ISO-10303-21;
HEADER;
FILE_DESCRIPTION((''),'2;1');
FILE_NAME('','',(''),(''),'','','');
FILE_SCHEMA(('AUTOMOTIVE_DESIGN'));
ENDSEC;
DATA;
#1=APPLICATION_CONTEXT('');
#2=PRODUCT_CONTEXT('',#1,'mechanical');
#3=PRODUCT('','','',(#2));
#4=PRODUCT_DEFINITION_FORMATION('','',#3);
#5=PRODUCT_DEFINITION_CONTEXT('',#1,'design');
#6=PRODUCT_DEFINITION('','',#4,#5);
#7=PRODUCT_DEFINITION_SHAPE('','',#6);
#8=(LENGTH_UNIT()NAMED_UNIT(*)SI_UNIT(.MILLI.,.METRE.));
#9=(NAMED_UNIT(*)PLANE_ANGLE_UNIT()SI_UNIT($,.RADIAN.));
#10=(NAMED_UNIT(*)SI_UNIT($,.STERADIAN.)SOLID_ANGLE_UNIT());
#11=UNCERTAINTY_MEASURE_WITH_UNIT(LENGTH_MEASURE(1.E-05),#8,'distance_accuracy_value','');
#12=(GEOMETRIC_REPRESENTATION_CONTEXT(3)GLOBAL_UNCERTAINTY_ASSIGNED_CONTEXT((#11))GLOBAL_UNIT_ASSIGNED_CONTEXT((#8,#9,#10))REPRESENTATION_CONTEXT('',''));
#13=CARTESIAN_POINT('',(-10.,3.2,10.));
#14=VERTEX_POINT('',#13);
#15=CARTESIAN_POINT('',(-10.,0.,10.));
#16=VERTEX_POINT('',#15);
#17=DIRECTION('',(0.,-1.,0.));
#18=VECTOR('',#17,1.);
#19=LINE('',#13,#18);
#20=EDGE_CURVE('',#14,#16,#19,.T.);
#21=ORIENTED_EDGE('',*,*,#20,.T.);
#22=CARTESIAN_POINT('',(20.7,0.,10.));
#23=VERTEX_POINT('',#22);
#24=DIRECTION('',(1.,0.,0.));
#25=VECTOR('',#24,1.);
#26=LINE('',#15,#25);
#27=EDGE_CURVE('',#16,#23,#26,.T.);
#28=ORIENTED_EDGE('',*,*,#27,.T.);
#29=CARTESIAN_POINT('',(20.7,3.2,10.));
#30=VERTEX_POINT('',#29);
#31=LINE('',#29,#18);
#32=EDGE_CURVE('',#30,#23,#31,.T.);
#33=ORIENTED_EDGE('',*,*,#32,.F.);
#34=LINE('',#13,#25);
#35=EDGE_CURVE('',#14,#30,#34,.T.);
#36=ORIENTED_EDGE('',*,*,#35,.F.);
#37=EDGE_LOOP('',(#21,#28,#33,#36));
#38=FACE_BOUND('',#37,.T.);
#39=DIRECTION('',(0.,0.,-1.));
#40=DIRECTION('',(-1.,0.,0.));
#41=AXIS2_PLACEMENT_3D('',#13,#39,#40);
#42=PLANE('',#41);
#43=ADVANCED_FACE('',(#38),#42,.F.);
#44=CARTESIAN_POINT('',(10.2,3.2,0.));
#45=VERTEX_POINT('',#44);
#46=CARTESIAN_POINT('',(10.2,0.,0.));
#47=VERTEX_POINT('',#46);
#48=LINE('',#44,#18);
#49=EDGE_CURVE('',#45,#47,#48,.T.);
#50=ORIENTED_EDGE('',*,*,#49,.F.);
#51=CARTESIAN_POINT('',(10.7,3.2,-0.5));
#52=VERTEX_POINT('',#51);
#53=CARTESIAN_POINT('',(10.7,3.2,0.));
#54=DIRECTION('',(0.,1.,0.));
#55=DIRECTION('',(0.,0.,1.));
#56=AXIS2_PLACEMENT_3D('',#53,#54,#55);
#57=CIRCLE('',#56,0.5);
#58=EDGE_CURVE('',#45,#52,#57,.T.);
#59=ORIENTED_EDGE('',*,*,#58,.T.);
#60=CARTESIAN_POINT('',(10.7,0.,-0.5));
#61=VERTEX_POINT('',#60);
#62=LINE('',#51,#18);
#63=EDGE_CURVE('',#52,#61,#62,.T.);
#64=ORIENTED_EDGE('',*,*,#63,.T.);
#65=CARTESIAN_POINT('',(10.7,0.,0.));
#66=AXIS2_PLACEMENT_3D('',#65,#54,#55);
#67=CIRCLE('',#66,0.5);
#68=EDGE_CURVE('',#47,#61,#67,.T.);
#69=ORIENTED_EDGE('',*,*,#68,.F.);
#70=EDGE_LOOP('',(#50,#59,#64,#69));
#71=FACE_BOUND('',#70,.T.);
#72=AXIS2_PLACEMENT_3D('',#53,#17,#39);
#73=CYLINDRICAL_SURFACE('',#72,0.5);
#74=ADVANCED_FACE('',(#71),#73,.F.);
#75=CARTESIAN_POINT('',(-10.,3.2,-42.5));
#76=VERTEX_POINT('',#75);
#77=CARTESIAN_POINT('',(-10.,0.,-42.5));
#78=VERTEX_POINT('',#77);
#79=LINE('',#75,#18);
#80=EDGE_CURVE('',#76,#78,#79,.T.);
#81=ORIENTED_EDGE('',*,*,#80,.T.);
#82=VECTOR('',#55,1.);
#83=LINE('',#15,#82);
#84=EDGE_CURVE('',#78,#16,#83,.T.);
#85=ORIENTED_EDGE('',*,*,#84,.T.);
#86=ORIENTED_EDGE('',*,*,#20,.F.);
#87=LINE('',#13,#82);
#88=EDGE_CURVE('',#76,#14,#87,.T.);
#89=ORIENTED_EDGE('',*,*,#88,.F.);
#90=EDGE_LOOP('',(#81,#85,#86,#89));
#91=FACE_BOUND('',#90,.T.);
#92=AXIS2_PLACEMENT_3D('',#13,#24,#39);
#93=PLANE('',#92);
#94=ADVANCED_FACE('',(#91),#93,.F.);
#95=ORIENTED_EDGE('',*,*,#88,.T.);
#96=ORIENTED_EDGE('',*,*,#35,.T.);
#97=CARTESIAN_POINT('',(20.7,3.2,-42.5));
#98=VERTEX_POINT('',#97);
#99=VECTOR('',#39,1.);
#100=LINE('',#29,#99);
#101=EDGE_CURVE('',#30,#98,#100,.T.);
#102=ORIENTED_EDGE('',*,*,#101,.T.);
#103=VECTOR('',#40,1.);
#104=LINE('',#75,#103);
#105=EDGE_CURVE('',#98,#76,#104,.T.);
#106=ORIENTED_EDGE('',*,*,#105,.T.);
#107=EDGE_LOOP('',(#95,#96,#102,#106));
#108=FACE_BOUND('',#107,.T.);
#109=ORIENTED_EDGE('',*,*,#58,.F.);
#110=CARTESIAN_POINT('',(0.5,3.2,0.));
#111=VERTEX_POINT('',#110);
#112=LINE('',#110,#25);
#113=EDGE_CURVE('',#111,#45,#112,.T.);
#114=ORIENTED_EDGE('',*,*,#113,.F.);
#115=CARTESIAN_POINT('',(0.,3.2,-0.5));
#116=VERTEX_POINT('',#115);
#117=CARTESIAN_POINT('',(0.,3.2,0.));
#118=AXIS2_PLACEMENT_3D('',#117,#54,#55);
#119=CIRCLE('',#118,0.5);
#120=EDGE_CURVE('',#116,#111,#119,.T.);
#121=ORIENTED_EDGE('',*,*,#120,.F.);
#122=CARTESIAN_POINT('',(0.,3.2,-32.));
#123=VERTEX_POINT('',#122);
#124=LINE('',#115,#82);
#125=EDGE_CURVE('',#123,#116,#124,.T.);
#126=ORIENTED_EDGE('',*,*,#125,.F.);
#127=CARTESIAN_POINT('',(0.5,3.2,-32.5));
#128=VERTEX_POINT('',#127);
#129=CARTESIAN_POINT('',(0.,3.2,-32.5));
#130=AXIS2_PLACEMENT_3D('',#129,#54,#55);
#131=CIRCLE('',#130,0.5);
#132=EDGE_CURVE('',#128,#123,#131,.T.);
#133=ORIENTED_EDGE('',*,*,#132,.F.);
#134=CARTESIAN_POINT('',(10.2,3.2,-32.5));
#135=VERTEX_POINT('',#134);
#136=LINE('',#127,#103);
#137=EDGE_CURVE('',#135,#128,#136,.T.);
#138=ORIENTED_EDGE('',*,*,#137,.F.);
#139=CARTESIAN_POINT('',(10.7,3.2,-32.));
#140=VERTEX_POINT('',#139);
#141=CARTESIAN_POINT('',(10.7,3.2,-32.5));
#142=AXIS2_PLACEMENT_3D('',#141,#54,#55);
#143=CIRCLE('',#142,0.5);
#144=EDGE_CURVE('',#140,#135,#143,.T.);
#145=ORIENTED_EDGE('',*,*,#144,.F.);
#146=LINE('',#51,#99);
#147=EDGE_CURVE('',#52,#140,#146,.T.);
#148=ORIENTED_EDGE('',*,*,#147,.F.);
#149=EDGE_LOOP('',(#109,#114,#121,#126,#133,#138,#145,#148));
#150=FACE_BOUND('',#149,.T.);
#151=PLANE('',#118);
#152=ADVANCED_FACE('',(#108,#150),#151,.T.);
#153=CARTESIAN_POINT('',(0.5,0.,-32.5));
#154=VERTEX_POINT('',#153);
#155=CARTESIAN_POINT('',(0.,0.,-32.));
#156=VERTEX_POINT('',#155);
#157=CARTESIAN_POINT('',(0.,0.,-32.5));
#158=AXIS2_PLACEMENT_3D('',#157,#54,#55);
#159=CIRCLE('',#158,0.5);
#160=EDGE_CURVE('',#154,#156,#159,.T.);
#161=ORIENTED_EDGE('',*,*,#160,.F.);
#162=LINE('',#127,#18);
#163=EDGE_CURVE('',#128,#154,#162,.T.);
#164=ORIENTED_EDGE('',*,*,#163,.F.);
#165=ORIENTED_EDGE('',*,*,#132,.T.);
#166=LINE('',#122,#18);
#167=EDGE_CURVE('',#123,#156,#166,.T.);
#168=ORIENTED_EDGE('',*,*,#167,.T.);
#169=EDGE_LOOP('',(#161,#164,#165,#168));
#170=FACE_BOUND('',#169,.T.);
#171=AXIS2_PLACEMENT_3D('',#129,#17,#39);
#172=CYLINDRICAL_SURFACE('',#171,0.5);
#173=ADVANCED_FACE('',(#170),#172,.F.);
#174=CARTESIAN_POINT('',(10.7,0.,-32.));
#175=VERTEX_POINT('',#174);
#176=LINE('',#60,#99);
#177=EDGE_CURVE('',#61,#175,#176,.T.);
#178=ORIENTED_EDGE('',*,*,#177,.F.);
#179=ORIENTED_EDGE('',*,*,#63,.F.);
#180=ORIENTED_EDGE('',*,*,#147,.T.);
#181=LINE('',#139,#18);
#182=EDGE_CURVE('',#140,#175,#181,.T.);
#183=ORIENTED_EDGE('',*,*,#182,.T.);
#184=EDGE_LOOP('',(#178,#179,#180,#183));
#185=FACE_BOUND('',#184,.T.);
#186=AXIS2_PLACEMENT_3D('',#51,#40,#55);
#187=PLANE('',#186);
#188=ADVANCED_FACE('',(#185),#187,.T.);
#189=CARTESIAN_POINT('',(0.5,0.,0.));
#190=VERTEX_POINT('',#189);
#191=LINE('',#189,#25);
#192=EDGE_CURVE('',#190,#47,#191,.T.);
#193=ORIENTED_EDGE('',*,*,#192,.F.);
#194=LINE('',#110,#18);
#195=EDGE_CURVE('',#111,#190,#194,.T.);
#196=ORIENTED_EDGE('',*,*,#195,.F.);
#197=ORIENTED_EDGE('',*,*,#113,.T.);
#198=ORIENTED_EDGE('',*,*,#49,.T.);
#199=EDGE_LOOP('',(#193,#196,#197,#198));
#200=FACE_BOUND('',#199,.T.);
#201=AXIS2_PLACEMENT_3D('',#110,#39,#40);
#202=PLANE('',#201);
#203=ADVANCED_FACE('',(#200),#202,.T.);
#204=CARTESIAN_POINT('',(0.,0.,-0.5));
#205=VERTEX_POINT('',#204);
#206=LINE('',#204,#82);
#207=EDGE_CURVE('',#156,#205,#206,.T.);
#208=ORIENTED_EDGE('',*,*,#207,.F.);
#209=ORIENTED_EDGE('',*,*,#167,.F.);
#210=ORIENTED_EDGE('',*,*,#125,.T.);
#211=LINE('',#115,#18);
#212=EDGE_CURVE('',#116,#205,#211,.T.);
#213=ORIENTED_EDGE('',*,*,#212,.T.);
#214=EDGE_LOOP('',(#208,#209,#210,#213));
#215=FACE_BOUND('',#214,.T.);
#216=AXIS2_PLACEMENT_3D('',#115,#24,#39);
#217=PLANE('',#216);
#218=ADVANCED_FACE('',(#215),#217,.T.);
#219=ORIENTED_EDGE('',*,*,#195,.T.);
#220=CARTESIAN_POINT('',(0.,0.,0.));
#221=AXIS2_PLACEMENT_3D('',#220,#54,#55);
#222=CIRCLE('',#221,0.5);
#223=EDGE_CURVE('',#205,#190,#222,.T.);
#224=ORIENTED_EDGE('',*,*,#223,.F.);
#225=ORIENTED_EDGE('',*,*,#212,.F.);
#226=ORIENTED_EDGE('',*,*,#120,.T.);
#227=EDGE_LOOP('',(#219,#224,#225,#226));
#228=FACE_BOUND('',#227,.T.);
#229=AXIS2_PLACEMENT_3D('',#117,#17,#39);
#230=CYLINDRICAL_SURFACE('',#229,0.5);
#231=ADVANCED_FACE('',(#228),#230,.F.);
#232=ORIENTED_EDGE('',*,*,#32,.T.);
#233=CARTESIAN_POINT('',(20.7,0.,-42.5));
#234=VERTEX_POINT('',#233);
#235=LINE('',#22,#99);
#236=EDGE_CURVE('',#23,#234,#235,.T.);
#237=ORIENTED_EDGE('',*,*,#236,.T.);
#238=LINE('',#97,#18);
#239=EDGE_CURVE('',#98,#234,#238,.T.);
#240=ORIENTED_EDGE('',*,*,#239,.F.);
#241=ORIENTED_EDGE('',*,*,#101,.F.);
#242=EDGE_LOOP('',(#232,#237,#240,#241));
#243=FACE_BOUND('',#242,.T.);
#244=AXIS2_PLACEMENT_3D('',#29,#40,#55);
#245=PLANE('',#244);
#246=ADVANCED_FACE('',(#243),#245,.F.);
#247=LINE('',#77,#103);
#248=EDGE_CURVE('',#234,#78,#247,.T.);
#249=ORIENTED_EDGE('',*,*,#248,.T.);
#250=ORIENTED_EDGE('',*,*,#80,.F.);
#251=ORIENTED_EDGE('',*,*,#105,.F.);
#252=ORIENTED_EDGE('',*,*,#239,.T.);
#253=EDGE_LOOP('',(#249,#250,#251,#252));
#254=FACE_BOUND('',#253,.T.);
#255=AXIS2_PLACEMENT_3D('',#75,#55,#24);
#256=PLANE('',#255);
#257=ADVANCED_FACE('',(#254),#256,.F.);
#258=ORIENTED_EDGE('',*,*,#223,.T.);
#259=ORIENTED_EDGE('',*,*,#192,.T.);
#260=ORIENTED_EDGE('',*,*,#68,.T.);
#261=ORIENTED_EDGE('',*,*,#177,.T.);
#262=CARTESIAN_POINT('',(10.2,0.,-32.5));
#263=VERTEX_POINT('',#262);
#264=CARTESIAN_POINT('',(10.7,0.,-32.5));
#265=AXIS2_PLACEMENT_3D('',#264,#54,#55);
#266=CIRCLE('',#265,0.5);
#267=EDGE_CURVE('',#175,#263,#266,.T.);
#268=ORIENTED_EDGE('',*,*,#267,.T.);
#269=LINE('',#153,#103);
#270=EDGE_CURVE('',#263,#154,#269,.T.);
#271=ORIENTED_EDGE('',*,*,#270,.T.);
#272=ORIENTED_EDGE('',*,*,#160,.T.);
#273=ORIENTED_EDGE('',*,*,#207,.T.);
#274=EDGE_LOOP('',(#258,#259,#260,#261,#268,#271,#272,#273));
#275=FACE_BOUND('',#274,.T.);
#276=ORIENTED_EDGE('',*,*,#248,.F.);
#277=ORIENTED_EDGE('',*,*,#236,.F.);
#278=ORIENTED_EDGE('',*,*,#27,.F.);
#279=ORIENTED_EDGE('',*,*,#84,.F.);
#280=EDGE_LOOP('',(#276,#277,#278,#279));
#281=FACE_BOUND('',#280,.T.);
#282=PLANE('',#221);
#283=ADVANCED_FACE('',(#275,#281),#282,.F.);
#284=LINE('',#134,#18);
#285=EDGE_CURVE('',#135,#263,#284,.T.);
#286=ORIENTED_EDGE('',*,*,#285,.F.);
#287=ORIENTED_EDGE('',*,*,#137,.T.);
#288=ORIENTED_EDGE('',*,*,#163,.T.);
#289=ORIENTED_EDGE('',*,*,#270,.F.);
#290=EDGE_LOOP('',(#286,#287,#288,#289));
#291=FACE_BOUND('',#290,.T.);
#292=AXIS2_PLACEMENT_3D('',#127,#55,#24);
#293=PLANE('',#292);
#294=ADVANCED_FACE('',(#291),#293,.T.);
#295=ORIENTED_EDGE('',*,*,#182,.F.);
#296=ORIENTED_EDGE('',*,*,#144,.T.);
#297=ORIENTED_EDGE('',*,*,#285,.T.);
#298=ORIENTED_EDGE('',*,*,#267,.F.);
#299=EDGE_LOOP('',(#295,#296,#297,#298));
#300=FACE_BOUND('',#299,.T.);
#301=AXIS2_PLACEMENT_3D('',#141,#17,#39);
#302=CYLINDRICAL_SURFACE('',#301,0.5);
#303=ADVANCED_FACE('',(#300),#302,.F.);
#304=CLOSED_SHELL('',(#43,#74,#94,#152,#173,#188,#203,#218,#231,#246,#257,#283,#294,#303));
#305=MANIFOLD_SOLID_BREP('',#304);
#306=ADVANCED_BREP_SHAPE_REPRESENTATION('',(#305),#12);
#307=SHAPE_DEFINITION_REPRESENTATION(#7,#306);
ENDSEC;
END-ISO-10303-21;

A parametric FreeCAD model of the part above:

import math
import FreeCAD as App
import Part
import Sketcher

V = App.Vector

doc = App.newDocument("Part")
body = doc.addObject("PartDesign::Body", "Body")

# Sketch on XZ plane
sketch1 = doc.addObject("Sketcher::SketchObject", "Sketch")
body.addObject(sketch1)
sketch1.AttachmentSupport = (doc.XZ_Plane, [""])
sketch1.MapMode = "FlatFace"
sketch1.addGeometry([
    Part.LineSegment(V(-10, -42.5, 0), V(-10, 10, 0)),  # 0
    Part.LineSegment(V(-10, 10, 0), V(20.7, 10, 0)),  # 1
    Part.LineSegment(V(20.7, 10, 0), V(20.7, -42.5, 0)),  # 2
    Part.LineSegment(V(20.7, -42.5, 0), V(-10, -42.5, 0)),  # 3
    Part.LineSegment(V(10.2, 0, 0), V(0.5, 0, 0)),  # 4
    Part.ArcOfCircle(Part.Circle(V(0, 0, 0), V(0, 0, 1), 0.5), math.radians(0), math.radians(270)),  # 5
    Part.LineSegment(V(0, -0.5, 0), V(0, -32, 0)),  # 6
    Part.ArcOfCircle(Part.Circle(V(0, -32.5, 0), V(0, 0, 1), 0.5), math.radians(90), math.radians(360)),  # 7
    Part.LineSegment(V(0.5, -32.5, 0), V(10.2, -32.5, 0)),  # 8
    Part.ArcOfCircle(Part.Circle(V(10.7, -32.5, 0), V(0, 0, 1), 0.5), math.radians(180), math.radians(450)),  # 9
    Part.LineSegment(V(10.7, -32, 0), V(10.7, -0.5, 0)),  # 10
    Part.ArcOfCircle(Part.Circle(V(10.7, 0, 0), V(0, 0, 1), 0.5), math.radians(-90), math.radians(180)),  # 11
], False)
sketch1.addConstraint([
    Sketcher.Constraint("Coincident", 0, 2, 1, 1),
    Sketcher.Constraint("Coincident", 1, 2, 2, 1),
    Sketcher.Constraint("Coincident", 2, 2, 3, 1),
    Sketcher.Constraint("Coincident", 3, 2, 0, 1),
    Sketcher.Constraint("Coincident", 4, 2, 5, 1),
    Sketcher.Constraint("Coincident", 5, 2, 6, 1),
    Sketcher.Constraint("Coincident", 6, 2, 7, 1),
    Sketcher.Constraint("Coincident", 7, 2, 8, 1),
    Sketcher.Constraint("Coincident", 8, 2, 9, 1),
    Sketcher.Constraint("Coincident", 9, 2, 10, 1),
    Sketcher.Constraint("Coincident", 10, 2, 11, 1),
    Sketcher.Constraint("Coincident", 11, 2, 4, 1),
    Sketcher.Constraint("Vertical", 0),
    Sketcher.Constraint("Horizontal", 1),
    Sketcher.Constraint("Vertical", 2),
    Sketcher.Constraint("Horizontal", 3),
    Sketcher.Constraint("Horizontal", 4),
    Sketcher.Constraint("Vertical", 6),
    Sketcher.Constraint("Horizontal", 8),
    Sketcher.Constraint("Vertical", 10),
    Sketcher.Constraint("Coincident", 5, 3, -1, 1),
    Sketcher.Constraint("Equal", 5, 7),
    Sketcher.Constraint("Equal", 7, 9),
    Sketcher.Constraint("Equal", 9, 11),
    Sketcher.Constraint("PointOnObject", 7, 3, -2),
    Sketcher.Constraint("PointOnObject", 11, 3, -1),
    Sketcher.Constraint("PointOnObject", 4, 2, -1),
    Sketcher.Constraint("PointOnObject", 5, 2, -2),
    Sketcher.Constraint("Horizontal", 7, 3, 9, 3),
    Sketcher.Constraint("Horizontal", 9, 3, 7, 2),
    Sketcher.Constraint("Vertical", 9, 3, 11, 3),
    Sketcher.Constraint("Vertical", 11, 3, 9, 2),
    Sketcher.Constraint("Radius", 5, 0.5),
    Sketcher.Constraint("DistanceX", 1, 1, 1, 2, 30.7),
    Sketcher.Constraint("DistanceX", 4, 2, 4, 1, 9.7),
    Sketcher.Constraint("DistanceY", 0, 1, 0, 2, 52.5),
    Sketcher.Constraint("DistanceY", 6, 2, 6, 1, 31.5),
    Sketcher.Constraint("DistanceX", 0, 2, -1, 1, 10.0),
    Sketcher.Constraint("DistanceY", -1, 1, 0, 2, 10.0),
])
pad1 = doc.addObject("PartDesign::Pad", "Pad")
body.addObject(pad1)
pad1.Profile = sketch1
pad1.Length = 3.2
pad1.Reversed = True

doc.recompute()
